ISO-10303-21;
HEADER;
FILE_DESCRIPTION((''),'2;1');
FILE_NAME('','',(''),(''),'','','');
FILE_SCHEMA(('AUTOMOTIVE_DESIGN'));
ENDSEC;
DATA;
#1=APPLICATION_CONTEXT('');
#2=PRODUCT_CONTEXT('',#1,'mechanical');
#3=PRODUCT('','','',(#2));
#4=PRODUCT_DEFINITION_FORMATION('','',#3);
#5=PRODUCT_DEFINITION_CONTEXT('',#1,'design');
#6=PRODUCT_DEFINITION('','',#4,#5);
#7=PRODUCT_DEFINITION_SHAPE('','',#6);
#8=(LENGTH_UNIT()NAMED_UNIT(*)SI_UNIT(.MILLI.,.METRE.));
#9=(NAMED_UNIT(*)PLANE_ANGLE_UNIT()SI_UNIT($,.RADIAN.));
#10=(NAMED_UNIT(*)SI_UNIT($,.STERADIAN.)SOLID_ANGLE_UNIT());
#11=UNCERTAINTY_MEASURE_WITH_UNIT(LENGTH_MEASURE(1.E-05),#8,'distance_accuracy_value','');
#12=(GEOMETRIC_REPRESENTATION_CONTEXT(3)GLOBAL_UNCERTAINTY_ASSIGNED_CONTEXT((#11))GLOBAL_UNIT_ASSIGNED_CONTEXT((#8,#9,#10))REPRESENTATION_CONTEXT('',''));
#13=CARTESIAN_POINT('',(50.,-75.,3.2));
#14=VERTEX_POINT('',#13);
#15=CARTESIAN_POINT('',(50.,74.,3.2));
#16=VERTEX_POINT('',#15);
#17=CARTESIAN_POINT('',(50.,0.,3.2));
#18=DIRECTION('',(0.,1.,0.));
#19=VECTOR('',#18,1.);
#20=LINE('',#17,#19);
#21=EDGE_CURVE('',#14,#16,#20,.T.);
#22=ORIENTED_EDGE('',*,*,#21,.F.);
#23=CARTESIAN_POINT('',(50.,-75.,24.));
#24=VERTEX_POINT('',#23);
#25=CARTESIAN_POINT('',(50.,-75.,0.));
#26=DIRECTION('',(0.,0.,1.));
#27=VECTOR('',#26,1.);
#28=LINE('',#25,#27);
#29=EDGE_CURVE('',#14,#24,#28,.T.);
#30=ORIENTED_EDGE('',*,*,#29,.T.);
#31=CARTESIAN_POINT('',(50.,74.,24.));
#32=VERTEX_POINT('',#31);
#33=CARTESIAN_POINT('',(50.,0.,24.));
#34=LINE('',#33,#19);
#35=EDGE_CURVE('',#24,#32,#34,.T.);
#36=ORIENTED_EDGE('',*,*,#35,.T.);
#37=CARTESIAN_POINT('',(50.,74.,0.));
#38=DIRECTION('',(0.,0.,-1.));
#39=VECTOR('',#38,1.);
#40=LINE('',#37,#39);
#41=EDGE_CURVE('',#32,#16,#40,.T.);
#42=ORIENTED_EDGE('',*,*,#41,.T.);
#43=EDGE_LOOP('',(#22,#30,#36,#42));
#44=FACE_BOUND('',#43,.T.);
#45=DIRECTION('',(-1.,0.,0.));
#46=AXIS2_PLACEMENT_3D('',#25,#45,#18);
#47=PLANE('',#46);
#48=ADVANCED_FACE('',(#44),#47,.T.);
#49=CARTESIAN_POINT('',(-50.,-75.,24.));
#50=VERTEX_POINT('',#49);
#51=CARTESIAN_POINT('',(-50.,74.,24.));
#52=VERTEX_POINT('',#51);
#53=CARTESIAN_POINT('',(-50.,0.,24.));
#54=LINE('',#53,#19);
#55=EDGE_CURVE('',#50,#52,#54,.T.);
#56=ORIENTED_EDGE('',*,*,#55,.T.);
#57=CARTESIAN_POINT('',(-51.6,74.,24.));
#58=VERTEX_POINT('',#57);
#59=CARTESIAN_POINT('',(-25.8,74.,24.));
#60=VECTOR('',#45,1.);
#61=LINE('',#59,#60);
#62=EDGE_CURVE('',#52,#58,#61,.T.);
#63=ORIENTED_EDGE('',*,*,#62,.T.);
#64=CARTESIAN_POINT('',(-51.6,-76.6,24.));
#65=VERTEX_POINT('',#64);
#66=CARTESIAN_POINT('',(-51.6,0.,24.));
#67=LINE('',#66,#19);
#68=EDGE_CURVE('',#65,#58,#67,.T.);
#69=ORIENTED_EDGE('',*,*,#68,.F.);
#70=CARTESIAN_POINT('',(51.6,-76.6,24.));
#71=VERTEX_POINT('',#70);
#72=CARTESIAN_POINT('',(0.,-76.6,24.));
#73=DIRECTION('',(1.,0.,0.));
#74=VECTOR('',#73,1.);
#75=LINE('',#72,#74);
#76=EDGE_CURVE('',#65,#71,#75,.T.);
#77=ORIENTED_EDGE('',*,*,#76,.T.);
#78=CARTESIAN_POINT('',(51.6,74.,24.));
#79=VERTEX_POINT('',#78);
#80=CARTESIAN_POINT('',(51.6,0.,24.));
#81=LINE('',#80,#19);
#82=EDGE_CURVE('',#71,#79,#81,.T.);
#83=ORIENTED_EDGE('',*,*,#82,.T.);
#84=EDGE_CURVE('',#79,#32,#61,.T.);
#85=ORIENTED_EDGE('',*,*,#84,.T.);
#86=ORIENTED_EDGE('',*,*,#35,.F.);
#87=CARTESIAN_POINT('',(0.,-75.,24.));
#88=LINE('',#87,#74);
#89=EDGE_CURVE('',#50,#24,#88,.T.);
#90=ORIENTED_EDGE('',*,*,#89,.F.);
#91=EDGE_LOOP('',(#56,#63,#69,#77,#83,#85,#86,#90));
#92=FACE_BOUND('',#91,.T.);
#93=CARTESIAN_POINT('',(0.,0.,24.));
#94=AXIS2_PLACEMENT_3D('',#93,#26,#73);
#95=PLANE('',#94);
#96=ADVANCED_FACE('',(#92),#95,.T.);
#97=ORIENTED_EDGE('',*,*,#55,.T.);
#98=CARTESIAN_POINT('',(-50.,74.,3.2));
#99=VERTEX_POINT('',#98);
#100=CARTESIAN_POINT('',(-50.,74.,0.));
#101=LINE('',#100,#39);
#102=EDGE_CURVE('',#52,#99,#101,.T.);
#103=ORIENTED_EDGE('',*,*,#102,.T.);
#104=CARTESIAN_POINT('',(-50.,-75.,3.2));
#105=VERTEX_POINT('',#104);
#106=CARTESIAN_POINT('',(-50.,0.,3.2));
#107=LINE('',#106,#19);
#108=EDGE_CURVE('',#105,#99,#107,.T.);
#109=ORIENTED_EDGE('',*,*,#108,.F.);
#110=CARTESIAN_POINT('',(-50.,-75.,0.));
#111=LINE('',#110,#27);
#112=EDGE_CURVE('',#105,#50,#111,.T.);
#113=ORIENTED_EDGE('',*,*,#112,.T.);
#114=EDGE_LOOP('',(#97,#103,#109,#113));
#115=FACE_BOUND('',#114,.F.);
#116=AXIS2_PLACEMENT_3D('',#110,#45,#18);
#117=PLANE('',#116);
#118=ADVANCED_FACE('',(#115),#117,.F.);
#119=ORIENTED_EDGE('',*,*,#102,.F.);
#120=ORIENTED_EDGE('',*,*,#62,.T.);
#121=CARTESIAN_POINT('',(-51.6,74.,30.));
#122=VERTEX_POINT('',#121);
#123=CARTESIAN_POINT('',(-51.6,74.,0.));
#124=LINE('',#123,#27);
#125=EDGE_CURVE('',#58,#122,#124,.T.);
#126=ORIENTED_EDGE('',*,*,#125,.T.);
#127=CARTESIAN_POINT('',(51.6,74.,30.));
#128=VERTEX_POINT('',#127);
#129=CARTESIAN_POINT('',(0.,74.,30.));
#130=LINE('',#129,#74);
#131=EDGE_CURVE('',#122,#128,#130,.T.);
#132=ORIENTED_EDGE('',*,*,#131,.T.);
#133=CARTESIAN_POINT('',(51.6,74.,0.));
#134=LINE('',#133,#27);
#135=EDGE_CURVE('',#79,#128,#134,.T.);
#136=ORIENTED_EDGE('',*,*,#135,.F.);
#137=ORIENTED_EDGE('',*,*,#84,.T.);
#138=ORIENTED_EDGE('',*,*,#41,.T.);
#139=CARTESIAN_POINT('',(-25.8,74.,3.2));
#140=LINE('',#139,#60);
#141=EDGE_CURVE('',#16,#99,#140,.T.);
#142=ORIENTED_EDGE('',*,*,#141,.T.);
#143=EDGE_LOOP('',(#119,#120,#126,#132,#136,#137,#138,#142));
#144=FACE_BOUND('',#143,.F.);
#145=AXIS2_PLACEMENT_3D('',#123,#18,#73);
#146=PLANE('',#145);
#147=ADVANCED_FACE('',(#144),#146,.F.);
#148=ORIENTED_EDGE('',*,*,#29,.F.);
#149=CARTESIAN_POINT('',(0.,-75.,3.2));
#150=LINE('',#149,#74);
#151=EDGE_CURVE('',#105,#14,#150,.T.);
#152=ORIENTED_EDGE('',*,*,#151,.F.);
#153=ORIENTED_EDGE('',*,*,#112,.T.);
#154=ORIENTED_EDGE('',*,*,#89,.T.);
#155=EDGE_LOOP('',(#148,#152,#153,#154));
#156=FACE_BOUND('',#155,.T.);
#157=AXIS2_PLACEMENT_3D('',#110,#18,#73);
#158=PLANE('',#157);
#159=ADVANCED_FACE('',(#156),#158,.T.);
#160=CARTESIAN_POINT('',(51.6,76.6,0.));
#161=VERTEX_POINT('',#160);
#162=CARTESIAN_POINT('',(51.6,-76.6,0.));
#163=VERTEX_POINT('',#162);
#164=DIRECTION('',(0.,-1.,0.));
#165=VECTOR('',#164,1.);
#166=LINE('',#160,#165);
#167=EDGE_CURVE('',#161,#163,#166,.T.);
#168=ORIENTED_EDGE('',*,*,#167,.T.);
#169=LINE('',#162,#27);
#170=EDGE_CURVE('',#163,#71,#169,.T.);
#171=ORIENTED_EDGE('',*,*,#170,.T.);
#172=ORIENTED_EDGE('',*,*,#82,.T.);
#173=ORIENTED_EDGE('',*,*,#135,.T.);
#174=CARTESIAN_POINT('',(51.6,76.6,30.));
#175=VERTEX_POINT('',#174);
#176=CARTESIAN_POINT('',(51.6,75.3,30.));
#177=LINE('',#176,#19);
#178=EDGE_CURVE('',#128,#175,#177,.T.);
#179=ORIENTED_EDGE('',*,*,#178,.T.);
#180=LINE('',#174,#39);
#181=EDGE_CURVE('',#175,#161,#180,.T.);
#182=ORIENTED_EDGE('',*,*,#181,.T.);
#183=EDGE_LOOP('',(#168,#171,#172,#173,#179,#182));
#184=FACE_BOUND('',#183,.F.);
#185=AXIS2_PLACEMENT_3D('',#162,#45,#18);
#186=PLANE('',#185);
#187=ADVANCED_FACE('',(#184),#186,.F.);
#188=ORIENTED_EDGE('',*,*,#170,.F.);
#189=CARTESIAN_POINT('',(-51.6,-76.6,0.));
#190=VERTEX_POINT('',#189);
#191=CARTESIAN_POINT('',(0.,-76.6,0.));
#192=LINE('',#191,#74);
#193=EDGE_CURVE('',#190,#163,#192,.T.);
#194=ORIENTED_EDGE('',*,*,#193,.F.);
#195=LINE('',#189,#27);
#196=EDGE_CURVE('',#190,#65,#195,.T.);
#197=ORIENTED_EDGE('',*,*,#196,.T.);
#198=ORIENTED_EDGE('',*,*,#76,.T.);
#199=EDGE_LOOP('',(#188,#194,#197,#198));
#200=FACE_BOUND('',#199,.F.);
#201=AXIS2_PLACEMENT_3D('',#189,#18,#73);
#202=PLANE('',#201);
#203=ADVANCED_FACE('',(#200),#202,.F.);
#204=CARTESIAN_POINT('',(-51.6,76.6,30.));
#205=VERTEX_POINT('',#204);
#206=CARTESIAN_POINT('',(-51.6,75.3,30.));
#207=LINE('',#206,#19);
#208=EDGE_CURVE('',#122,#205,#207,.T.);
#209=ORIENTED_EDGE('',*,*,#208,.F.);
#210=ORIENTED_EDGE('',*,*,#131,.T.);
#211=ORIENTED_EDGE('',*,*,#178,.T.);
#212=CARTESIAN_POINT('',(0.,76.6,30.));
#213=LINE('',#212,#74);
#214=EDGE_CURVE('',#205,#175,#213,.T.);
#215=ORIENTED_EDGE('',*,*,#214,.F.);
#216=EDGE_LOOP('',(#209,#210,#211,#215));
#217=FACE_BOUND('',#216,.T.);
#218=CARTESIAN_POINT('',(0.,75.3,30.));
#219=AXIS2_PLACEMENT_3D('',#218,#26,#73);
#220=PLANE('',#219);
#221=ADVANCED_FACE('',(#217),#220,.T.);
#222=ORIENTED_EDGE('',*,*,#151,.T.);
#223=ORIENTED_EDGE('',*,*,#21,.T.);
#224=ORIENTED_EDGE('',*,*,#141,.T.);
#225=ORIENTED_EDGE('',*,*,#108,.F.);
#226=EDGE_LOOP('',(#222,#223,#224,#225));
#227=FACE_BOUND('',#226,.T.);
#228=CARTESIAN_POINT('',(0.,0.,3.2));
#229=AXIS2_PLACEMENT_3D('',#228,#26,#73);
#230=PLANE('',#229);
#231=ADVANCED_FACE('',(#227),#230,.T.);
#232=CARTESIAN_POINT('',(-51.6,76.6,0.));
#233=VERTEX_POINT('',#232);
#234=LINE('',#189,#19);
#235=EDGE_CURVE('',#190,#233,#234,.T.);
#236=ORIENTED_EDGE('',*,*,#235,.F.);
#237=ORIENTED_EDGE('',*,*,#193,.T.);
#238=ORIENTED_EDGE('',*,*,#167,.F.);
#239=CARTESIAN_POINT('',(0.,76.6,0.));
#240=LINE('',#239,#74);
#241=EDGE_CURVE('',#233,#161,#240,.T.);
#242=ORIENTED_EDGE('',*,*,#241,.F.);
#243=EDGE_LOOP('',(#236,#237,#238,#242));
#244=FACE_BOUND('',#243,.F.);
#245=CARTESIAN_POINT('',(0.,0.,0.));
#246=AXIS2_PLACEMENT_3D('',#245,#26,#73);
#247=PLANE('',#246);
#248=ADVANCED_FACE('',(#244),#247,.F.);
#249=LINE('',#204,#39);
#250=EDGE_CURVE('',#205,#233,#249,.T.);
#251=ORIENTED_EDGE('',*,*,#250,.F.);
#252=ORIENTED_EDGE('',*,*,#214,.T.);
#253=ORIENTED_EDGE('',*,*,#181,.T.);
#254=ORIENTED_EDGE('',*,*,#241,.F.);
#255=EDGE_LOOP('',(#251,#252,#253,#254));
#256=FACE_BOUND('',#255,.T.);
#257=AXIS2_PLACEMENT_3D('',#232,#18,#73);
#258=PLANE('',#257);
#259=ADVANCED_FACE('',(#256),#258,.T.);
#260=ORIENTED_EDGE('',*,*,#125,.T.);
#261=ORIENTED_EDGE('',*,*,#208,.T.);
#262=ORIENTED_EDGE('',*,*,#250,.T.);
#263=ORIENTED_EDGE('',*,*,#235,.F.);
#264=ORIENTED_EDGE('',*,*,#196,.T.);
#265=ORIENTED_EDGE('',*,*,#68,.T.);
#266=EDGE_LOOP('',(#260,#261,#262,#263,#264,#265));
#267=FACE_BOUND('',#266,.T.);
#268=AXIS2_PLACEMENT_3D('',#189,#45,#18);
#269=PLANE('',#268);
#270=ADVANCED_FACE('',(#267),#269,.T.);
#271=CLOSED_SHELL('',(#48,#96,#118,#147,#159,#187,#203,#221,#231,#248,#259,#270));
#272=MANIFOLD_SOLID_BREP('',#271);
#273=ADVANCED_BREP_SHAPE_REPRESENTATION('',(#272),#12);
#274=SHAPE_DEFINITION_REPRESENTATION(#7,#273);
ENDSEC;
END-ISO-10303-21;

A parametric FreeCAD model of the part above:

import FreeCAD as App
import Part
import Sketcher

V = App.Vector


def add_polygon(sketch, points):
    """Adds a closed chain of lines whose ends are joined by coincident constraints."""
    first, n = sketch.GeometryCount, len(points)
    for a, b in zip(points, points[1:] + points[:1]):
        sketch.addGeometry(Part.LineSegment(App.Vector(*a, 0), App.Vector(*b, 0)), False)
    for i in range(n):
        sketch.addConstraint(Sketcher.Constraint("Coincident", first + i, 2, first + (i + 1) % n, 1))

doc = App.newDocument("Part")
body = doc.addObject("PartDesign::Body", "Body")

# Sketch on XY plane
sketch1 = body.newObject("Sketcher::SketchObject", "Sketch")
sketch1.AttachmentSupport = (doc.getObject("XY_Plane"), [""])
sketch1.MapMode = "FlatFace"
add_polygon(sketch1, [(-52, 77), (-52, -77), (52, -77), (52, 77)])  # lines 0-3
add_polygon(sketch1, [(50, -75), (-50, -75), (-50, 75), (50, 75)])  # lines 4-7
sketch1.addConstraint([
    Sketcher.Constraint("Vertical", 0),
    Sketcher.Constraint("Horizontal", 1),
    Sketcher.Constraint("Vertical", 2),
    Sketcher.Constraint("Horizontal", 3),
    Sketcher.Constraint("Horizontal", 4),
    Sketcher.Constraint("Vertical", 5),
    Sketcher.Constraint("Horizontal", 6),
    Sketcher.Constraint("Vertical", 7),
    Sketcher.Constraint("Symmetric", 0, 2, 2, 2, -1, 1),
    Sketcher.Constraint("Symmetric", 4, 2, 6, 2, -1, 1),
    Sketcher.Constraint("DistanceX", 4, 2, 4, 1, 100.0),
    Sketcher.Constraint("DistanceY", 5, 1, 5, 2, 150.0),
    Sketcher.Constraint("DistanceX", 1, 1, 1, 2, 103.2),
    Sketcher.Constraint("DistanceY", 0, 2, 0, 1, 153.2),
])
pad1 = body.newObject("PartDesign::Pad", "Pad")
pad1.Profile = sketch1
pad1.Length = 24

# Sketch on XY plane
sketch2 = body.newObject("Sketcher::SketchObject", "Sketch001")
sketch2.AttachmentSupport = (doc.getObject("XY_Plane"), [""])
sketch2.MapMode = "FlatFace"
add_polygon(sketch2, [(-50, 75), (-50, -75), (50, -75), (50, 75)])  # lines 0-3
sketch2.addConstraint([
    Sketcher.Constraint("Vertical", 0),
    Sketcher.Constraint("Horizontal", 1),
    Sketcher.Constraint("Vertical", 2),
    Sketcher.Constraint("Horizontal", 3),
    Sketcher.Constraint("Symmetric", 0, 2, 2, 2, -1, 1),
    Sketcher.Constraint("DistanceX", 1, 1, 1, 2, 100.0),
    Sketcher.Constraint("DistanceY", 0, 2, 0, 1, 150.0),
])
pad2 = body.newObject("PartDesign::Pad", "Pad001")
pad2.Profile = sketch2
pad2.Length = 3.2

# Sketch on XY plane
sketch3 = body.newObject("Sketcher::SketchObject", "Sketch002")
sketch3.AttachmentSupport = (doc.getObject("XY_Plane"), [""])
sketch3.MapMode = "FlatFace"
add_polygon(sketch3, [(-51.6, 76.6), (-51.6, 74), (51.6, 74), (51.6, 76.6)])  # lines 0-3
sketch3.addConstraint([
    Sketcher.Constraint("Vertical", 0),
    Sketcher.Constraint("Horizontal", 1),
    Sketcher.Constraint("Vertical", 2),
    Sketcher.Constraint("Horizontal", 3),
    Sketcher.Constraint("DistanceX", 1, 1, 1, 2, 103.2),
    Sketcher.Constraint("DistanceY", 0, 2, 0, 1, 2.6),
    Sketcher.Constraint("DistanceY", -1, 1, 0, 2, 74.0),
    Sketcher.Constraint("DistanceX", 0, 2, -1, 1, 51.6),
])
pad3 = body.newObject("PartDesign::Pad", "Pad002")
pad3.Profile = sketch3
pad3.Length = 30

doc.recompute()
